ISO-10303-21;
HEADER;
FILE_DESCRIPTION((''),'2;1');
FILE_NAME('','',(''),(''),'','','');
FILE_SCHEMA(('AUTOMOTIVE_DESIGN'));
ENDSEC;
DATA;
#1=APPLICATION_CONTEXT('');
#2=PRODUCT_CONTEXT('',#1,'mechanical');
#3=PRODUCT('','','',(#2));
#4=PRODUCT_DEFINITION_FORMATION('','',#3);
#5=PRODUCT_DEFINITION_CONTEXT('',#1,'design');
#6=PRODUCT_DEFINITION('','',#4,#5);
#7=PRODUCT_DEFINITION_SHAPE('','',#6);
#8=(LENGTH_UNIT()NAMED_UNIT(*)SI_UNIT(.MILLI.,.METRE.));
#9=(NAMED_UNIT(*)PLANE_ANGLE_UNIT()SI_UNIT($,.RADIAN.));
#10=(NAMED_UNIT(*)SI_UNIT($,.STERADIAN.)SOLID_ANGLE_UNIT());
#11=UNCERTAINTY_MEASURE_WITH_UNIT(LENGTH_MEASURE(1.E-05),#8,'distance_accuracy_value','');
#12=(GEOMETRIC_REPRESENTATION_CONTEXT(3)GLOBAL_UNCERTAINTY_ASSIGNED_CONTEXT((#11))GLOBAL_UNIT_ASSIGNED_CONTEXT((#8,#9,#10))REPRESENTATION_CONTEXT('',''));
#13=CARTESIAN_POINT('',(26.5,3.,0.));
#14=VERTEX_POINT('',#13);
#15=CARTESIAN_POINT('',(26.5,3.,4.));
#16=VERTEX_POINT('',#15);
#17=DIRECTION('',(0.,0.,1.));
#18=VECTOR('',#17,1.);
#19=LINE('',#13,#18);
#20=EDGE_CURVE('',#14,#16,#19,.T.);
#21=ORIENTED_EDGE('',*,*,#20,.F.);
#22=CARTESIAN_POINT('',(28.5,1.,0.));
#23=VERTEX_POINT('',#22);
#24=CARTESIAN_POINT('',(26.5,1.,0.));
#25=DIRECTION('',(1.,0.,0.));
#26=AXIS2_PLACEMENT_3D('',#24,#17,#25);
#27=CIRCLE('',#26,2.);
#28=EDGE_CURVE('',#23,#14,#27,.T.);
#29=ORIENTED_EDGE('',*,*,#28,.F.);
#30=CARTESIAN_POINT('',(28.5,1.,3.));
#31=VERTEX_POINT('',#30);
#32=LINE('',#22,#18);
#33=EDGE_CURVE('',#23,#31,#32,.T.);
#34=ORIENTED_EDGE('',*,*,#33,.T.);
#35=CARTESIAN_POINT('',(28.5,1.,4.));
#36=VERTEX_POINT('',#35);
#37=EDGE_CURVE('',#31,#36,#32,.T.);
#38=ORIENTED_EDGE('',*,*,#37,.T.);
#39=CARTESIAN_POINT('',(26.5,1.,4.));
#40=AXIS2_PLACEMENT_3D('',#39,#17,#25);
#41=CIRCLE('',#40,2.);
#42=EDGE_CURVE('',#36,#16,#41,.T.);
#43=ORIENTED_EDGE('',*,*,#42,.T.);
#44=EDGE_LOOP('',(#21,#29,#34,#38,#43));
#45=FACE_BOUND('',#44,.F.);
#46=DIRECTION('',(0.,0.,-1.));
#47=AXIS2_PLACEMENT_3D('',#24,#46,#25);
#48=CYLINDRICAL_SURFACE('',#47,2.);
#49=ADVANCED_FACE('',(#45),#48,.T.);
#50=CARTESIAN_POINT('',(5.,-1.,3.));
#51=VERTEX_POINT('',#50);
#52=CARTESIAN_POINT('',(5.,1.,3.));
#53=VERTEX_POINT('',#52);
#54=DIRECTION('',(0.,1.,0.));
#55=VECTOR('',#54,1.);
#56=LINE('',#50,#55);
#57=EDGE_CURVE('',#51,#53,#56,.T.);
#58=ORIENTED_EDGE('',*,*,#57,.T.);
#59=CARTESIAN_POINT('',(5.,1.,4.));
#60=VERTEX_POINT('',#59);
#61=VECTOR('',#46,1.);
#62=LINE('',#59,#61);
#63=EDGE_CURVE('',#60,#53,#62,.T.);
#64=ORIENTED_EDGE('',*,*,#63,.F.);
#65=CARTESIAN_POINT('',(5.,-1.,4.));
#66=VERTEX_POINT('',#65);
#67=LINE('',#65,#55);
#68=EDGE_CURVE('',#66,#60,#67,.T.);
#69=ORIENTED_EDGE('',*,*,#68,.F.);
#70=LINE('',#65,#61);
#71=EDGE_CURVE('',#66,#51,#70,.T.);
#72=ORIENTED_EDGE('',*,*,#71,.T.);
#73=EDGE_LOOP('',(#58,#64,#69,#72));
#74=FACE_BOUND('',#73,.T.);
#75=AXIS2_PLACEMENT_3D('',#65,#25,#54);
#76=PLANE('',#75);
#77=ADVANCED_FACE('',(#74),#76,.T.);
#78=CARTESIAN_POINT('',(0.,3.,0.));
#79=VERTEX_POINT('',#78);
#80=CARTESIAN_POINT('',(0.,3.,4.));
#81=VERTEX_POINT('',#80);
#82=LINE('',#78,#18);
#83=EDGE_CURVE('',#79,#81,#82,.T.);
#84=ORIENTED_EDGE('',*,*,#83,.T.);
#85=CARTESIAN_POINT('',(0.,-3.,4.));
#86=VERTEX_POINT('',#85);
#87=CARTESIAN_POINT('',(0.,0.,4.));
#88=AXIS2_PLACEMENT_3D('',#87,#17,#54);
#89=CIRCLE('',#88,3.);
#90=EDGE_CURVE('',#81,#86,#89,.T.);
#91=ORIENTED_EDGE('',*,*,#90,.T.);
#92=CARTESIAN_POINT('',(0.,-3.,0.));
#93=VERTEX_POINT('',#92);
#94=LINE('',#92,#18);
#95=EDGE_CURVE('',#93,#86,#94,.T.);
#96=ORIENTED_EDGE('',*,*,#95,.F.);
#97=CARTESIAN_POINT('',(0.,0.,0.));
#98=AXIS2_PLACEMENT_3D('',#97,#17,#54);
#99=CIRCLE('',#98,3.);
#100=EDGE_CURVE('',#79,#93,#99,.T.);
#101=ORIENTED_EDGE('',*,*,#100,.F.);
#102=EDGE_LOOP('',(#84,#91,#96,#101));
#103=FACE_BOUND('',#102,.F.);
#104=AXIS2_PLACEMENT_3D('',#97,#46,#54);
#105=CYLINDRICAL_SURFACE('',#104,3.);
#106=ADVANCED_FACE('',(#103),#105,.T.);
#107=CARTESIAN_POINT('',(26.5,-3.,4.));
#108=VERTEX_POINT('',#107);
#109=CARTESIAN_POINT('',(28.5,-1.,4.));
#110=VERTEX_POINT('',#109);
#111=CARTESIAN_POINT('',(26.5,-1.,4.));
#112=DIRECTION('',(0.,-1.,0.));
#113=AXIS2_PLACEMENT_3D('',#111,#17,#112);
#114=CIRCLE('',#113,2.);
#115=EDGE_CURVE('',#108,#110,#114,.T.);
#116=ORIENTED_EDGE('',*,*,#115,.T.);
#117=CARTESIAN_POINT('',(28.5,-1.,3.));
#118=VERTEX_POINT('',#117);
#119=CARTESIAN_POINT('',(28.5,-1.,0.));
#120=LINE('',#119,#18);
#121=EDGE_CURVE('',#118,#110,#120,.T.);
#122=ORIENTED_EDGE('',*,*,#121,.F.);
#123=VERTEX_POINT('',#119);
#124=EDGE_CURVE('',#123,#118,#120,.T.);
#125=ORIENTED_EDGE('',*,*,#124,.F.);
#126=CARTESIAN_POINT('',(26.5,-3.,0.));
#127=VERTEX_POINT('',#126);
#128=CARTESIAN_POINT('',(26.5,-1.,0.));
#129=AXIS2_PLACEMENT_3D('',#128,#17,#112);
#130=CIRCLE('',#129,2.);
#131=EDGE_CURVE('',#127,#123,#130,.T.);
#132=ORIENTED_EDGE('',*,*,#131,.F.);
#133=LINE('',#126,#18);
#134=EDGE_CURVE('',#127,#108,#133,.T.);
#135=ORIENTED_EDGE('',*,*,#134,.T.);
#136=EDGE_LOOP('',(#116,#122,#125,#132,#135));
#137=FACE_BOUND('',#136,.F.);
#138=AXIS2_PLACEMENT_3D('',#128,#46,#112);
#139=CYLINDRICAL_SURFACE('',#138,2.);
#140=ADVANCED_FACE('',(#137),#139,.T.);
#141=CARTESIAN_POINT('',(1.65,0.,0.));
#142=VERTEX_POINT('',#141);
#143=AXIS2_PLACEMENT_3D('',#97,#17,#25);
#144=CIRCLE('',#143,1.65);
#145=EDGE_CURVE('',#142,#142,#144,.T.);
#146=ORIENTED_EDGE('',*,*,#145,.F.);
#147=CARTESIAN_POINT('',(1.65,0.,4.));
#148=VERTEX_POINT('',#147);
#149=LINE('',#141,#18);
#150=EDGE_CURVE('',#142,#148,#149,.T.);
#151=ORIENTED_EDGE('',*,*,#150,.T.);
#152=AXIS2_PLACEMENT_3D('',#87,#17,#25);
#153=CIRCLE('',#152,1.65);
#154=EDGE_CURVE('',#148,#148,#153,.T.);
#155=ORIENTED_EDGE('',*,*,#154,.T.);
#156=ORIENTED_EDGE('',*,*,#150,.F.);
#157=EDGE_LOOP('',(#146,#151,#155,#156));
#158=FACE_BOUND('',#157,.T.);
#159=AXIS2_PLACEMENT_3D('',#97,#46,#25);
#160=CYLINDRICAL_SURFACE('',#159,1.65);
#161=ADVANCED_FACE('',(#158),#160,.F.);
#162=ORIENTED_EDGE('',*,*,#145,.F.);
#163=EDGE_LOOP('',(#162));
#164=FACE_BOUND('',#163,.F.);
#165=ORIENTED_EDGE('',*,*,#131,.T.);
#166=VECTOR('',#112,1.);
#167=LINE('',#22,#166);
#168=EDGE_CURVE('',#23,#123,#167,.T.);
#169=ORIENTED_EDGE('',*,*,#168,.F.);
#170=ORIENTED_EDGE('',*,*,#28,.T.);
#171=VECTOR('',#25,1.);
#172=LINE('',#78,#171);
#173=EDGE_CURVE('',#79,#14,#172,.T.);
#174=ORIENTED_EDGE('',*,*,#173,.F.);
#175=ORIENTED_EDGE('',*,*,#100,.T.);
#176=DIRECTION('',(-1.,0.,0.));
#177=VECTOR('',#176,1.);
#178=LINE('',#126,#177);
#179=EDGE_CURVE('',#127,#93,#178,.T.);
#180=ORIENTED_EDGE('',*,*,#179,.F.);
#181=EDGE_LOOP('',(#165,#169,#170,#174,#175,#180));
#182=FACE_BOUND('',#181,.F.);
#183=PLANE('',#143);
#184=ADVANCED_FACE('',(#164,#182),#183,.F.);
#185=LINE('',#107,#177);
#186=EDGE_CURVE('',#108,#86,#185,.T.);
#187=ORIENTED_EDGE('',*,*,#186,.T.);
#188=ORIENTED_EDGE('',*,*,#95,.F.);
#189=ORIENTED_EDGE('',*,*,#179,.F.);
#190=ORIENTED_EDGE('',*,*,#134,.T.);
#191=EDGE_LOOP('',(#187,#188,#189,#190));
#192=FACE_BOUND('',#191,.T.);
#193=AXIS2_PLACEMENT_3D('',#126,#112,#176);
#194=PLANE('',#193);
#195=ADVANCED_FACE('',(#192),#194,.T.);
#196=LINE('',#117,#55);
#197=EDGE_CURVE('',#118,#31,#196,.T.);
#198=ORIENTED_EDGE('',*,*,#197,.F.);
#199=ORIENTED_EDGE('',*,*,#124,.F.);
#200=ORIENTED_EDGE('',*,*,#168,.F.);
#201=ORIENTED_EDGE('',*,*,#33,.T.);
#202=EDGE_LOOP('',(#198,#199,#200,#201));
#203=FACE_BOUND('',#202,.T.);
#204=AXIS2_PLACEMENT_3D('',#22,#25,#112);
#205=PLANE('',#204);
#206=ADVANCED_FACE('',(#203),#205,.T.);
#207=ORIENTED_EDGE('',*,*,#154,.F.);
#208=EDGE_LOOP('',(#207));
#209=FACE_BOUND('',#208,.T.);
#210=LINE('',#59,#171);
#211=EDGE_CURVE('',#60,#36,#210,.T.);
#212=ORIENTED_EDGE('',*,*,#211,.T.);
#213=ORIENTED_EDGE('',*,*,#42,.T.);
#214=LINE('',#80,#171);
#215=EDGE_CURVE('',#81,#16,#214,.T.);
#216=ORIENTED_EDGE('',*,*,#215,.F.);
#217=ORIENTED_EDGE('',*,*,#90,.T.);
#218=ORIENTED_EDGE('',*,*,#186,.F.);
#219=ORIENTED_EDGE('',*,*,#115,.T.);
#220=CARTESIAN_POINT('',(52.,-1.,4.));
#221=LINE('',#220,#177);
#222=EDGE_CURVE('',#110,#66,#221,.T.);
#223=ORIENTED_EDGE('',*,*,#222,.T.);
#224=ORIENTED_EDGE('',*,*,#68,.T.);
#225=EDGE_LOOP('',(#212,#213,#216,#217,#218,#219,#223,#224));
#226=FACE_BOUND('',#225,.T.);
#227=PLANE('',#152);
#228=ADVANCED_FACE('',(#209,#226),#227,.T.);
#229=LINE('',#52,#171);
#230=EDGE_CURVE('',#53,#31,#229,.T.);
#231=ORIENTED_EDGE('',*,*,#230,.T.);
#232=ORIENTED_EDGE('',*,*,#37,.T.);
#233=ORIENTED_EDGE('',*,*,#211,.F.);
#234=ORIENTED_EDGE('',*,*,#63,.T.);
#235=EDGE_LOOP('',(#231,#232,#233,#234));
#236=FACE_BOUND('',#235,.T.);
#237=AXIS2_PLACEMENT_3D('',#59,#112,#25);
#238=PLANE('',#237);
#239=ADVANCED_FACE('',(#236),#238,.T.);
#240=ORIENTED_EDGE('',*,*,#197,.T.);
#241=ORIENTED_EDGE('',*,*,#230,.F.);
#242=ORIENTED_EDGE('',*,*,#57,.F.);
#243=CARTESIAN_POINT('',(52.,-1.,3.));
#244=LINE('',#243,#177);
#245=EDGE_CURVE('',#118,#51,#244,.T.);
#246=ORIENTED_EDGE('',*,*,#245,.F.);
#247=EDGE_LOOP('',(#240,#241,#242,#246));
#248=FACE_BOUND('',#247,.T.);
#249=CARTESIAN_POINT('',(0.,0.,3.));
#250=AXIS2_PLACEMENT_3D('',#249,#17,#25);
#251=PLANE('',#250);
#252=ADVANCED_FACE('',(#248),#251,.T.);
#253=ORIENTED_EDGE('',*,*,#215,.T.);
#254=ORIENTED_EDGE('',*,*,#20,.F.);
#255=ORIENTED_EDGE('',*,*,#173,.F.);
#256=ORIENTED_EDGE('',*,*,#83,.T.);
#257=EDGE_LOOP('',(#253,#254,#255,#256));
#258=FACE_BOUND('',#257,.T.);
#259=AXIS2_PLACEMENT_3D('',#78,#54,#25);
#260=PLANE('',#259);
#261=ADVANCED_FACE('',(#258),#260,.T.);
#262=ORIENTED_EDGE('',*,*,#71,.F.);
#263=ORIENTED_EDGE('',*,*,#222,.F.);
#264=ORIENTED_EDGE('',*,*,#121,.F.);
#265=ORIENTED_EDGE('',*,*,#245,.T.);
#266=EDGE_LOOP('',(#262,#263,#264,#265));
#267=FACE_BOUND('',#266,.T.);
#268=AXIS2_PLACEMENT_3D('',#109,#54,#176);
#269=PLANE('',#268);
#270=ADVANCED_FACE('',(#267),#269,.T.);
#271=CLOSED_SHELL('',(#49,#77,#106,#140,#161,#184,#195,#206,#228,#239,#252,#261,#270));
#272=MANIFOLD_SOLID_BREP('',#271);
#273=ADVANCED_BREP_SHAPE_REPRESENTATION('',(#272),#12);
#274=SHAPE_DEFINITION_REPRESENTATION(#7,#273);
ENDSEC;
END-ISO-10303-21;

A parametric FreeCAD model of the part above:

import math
import FreeCAD as App
import Part
import Sketcher

V = App.Vector


def add_polygon(sketch, points):
    """Adds a closed chain of lines whose ends are joined by coincident constraints."""
    first, n = sketch.GeometryCount, len(points)
    for a, b in zip(points, points[1:] + points[:1]):
        sketch.addGeometry(Part.LineSegment(App.Vector(*a, 0), App.Vector(*b, 0)), False)
    for i in range(n):
        sketch.addConstraint(Sketcher.Constraint("Coincident", first + i, 2, first + (i + 1) % n, 1))

doc = App.newDocument("Part")
body = doc.addObject("PartDesign::Body", "Body")

# Sketch on XY plane
sketch1 = body.newObject("Sketcher::SketchObject", "Sketch")
sketch1.AttachmentSupport = (doc.getObject("XY_Plane"), [""])
sketch1.MapMode = "FlatFace"
sketch1.addGeometry([
    Part.LineSegment(V(26.5, 3, 0), V(0, 3, 0)),  # 0
    Part.ArcOfCircle(Part.Circle(V(0, 0, 0), V(0, 0, 1), 3), math.radians(90), math.radians(270)),  # 1
    Part.LineSegment(V(0, -3, 0), V(26.5, -3, 0)),  # 2
    Part.ArcOfCircle(Part.Circle(V(26.5, -1, 0), V(0, 0, 1), 2), math.radians(-90), math.radians(0)),  # 3
    Part.LineSegment(V(28.5, -1, 0), V(28.5, 1, 0)),  # 4
    Part.ArcOfCircle(Part.Circle(V(26.5, 1, 0), V(0, 0, 1), 2), math.radians(0), math.radians(90)),  # 5
    Part.Circle(V(0, 0, 0), V(0, 0, 1), 1.6),  # 6
], False)
sketch1.addConstraint([
    Sketcher.Constraint("Tangent", 0, 2, 1, 1),
    Sketcher.Constraint("Tangent", 1, 2, 2, 1),
    Sketcher.Constraint("Tangent", 2, 2, 3, 1),
    Sketcher.Constraint("Tangent", 3, 2, 4, 1),
    Sketcher.Constraint("Tangent", 4, 2, 5, 1),
    Sketcher.Constraint("Tangent", 5, 2, 0, 1),
    Sketcher.Constraint("Horizontal", 0),
    Sketcher.Constraint("Horizontal", 2),
    Sketcher.Constraint("Vertical", 4),
    Sketcher.Constraint("Coincident", 1, 3, -1, 1),
    Sketcher.Constraint("Coincident", 6, 3, -1, 1),
    Sketcher.Constraint("Equal", 3, 5),
    Sketcher.Constraint("Radius", 1, 3.0),
    Sketcher.Constraint("Radius", 3, 2.0),
    Sketcher.Constraint("Diameter", 6, 3.3),
    Sketcher.Constraint("DistanceX", -1, 1, 3, 2, 28.5),
])
pad1 = body.newObject("PartDesign::Pad", "Pad")
pad1.Profile = sketch1
pad1.Length = 4

# Sketch on XY plane
sketch2 = body.newObject("Sketcher::SketchObject", "Sketch001")
sketch2.AttachmentSupport = (doc.getObject("XY_Plane"), [""])
sketch2.MapMode = "FlatFace"
sketch2.AttachmentOffset = App.Placement(V(0, 0, 4), App.Rotation())
add_polygon(sketch2, [(5, -1), (28.5, -1), (28.5, 1), (5, 1)])  # lines 0-3
sketch2.addConstraint([
    Sketcher.Constraint("Horizontal", 0),
    Sketcher.Constraint("Vertical", 1),
    Sketcher.Constraint("Horizontal", 2),
    Sketcher.Constraint("Vertical", 3),
    Sketcher.Constraint("DistanceY", 1, 1, 1, 2, 2.0),
    Sketcher.Constraint("DistanceX", -1, 1, 2, 2, 5.0),
    Sketcher.Constraint("DistanceX", 0, 1, 0, 2, 23.5),
    Sketcher.Constraint("DistanceY", 0, 2, -1, 1, 1.0),
])
pocket1 = body.newObject("PartDesign::Pocket", "Pocket")
pocket1.Profile = sketch2
pocket1.Length = 1

doc.recompute()
